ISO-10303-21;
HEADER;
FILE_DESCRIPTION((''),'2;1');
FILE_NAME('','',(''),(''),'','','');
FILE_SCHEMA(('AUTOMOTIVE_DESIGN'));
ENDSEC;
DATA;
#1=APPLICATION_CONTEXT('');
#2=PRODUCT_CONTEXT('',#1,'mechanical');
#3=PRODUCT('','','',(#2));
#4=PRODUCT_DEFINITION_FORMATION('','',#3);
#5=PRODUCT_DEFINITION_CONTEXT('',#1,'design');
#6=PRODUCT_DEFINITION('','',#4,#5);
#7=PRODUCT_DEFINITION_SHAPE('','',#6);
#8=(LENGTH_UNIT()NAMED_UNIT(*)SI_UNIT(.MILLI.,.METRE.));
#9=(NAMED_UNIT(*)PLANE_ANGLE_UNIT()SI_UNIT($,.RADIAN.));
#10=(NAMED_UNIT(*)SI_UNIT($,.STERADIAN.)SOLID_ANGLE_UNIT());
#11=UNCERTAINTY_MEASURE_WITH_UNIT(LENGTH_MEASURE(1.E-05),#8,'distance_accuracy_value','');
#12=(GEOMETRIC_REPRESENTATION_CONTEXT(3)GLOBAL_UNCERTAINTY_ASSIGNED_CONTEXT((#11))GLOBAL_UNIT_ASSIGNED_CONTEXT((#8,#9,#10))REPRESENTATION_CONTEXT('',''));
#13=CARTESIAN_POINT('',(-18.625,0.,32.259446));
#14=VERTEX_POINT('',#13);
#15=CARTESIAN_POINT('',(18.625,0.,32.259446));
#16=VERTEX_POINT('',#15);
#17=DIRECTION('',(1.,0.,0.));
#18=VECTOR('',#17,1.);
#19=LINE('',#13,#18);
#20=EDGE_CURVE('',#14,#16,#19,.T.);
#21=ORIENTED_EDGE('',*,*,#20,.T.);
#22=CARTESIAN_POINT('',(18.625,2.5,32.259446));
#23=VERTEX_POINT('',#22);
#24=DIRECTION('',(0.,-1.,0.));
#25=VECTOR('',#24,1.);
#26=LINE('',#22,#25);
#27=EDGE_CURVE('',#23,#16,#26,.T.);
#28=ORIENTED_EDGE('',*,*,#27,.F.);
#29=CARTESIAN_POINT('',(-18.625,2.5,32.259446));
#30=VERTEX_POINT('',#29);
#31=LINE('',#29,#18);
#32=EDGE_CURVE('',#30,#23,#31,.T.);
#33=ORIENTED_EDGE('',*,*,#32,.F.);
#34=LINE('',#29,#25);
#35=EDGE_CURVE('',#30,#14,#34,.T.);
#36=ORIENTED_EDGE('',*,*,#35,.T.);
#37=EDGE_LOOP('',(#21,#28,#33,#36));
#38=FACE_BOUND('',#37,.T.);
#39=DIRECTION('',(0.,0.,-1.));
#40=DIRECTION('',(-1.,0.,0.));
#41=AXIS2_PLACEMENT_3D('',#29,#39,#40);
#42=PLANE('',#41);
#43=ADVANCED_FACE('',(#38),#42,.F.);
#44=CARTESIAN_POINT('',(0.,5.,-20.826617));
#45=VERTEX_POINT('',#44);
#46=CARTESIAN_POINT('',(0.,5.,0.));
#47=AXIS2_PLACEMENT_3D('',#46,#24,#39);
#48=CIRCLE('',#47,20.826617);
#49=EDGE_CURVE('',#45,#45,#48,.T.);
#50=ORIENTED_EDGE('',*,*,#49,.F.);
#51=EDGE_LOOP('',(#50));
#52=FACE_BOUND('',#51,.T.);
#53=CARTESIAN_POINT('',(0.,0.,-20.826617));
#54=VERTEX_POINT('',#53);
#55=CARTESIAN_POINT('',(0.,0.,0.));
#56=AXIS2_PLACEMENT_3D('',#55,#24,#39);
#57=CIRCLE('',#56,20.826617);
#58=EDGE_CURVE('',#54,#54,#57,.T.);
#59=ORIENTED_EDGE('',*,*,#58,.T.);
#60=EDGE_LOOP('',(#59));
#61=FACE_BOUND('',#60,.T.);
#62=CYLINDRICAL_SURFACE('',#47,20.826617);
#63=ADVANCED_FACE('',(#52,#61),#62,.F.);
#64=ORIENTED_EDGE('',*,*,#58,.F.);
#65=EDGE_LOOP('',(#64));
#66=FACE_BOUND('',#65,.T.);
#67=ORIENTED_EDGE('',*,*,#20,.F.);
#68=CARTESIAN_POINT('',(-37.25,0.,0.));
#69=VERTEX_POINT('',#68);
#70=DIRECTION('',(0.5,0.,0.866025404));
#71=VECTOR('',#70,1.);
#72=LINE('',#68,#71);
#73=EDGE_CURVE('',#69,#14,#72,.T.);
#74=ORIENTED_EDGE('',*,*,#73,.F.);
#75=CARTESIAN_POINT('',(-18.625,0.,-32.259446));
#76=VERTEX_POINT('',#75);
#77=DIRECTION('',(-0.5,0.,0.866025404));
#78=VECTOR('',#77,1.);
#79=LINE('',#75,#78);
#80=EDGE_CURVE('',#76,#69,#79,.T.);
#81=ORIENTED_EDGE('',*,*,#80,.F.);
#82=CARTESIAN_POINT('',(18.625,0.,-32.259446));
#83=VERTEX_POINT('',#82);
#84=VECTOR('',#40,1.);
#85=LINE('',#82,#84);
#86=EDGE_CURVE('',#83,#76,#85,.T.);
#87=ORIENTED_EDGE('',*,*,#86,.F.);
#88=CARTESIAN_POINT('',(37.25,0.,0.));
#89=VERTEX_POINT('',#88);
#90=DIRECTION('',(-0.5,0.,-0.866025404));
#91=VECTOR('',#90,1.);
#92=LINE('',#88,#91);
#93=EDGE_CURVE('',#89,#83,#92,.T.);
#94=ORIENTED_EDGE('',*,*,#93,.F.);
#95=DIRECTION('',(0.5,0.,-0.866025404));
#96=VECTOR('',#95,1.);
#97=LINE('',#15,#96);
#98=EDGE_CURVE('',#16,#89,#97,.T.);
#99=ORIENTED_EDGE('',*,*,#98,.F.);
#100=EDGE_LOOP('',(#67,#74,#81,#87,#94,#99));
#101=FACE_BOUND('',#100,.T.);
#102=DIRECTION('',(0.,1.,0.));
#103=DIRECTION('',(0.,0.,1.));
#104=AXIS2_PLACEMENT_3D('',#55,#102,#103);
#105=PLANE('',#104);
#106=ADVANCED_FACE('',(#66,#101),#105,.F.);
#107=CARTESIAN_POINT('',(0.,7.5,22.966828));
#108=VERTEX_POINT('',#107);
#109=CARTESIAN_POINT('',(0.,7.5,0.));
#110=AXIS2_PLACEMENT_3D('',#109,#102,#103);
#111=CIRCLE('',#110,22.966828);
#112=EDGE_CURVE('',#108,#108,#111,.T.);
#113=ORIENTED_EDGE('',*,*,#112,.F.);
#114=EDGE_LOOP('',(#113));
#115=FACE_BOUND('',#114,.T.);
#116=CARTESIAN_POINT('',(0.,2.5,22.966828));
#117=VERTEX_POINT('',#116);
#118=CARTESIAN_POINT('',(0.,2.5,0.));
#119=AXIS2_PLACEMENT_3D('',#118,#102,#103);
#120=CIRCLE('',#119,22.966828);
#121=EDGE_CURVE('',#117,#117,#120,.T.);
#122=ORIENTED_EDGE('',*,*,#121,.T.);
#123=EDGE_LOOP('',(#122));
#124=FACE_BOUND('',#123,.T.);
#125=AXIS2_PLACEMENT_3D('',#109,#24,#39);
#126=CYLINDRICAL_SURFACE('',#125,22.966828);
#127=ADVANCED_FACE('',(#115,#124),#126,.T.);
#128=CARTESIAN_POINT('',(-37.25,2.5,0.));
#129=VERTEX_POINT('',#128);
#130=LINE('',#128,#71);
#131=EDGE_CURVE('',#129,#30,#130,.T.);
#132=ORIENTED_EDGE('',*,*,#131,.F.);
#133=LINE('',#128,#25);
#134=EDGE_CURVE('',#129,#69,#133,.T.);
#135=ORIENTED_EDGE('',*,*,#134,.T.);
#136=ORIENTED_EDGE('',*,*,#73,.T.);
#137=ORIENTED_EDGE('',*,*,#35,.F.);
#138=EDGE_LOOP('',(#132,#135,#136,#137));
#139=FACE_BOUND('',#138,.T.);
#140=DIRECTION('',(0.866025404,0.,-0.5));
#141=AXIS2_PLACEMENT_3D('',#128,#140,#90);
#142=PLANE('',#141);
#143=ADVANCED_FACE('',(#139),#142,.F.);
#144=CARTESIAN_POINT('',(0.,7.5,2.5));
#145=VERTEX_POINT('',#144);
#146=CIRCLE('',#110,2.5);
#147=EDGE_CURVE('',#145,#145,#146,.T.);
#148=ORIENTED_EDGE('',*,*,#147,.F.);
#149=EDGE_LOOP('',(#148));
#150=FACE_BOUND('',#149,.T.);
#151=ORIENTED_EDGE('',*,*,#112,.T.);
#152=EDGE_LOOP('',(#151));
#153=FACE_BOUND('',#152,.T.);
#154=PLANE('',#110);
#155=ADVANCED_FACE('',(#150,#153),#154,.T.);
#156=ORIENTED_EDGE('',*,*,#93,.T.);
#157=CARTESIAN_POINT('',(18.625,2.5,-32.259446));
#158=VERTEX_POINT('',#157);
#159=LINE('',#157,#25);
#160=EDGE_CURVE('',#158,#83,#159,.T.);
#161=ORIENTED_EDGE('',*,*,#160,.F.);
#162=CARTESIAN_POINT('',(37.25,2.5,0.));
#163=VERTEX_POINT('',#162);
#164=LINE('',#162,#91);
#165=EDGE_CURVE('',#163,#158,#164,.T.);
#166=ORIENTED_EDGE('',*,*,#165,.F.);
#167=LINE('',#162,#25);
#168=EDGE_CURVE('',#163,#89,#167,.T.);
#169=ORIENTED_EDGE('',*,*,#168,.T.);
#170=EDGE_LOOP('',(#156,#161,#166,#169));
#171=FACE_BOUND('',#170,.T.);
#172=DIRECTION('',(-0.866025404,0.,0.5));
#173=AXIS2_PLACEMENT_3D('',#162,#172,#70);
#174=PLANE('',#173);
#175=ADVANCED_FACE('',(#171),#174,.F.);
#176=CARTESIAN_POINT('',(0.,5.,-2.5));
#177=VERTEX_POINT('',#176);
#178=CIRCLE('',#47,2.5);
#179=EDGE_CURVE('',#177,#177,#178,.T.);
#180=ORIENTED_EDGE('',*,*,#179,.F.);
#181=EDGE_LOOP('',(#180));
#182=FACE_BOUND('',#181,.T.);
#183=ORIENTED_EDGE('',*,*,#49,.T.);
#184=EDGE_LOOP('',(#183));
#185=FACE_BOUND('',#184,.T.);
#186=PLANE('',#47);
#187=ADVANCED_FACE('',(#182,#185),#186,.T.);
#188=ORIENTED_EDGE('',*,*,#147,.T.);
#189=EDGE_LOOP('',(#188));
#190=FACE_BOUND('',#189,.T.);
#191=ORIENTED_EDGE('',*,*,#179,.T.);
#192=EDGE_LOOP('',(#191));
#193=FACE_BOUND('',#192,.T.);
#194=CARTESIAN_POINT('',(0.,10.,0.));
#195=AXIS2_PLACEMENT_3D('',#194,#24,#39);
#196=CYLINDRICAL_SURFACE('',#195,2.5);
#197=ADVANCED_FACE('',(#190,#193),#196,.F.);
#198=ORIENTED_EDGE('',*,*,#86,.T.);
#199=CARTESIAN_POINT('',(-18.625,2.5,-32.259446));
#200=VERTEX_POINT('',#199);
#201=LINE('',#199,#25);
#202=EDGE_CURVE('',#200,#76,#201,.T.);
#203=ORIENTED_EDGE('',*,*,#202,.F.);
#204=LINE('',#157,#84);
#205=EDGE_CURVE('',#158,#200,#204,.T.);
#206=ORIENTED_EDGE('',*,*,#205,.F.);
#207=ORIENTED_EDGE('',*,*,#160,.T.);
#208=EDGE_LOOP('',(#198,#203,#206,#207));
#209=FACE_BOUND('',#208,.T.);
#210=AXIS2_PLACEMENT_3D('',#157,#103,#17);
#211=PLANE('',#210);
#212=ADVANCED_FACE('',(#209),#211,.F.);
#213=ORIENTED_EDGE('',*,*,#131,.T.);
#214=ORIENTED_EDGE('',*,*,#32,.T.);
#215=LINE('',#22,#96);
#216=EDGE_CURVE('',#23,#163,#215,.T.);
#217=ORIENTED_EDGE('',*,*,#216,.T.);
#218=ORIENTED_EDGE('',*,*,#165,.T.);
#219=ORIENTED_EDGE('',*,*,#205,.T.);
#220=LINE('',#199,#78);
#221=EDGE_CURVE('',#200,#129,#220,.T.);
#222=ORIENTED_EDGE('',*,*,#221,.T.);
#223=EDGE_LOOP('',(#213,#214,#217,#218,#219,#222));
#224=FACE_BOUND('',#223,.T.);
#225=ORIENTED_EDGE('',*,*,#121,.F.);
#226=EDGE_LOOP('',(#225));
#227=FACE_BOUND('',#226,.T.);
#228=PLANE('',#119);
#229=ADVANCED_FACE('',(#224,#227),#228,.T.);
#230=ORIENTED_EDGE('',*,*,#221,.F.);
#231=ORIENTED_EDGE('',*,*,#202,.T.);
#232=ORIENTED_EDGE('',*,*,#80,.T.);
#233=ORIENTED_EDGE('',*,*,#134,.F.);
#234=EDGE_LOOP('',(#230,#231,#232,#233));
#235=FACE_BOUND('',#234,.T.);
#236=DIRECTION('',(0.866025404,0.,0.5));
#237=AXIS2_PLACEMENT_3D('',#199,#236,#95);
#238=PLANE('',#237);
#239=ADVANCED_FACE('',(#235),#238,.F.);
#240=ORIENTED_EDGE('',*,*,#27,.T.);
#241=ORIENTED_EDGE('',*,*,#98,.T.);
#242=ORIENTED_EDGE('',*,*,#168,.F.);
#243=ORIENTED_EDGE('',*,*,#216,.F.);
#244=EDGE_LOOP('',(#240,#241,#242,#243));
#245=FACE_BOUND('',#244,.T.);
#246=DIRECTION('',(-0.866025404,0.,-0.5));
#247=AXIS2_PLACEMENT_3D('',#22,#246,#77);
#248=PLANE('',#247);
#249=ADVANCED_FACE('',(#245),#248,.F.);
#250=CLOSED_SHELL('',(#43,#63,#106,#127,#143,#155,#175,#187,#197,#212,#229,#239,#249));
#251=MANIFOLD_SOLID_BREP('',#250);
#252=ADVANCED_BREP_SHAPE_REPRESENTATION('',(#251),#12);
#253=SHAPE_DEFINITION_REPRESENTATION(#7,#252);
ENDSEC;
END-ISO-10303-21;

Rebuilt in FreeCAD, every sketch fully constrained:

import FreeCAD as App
import Part
import Sketcher
Q = App.Units.Quantity

doc = App.newDocument("Part")
body = doc.addObject("PartDesign::Body", "Body")

# Sketch on XZ plane
sketch1 = body.newObject("Sketcher::SketchObject", "Sketch")
sketch1.AttachmentSupport = (doc.getObject("XZ_Plane"), [""])
sketch1.MapMode = "FlatFace"
sketch1.addGeometry(Part.LineSegment(App.Vector(37.25, 0, 0), App.Vector(18.625, -32.259446, 0)), False)
sketch1.addGeometry(Part.LineSegment(App.Vector(18.625, -32.259446, 0), App.Vector(-18.625, -32.259446, 0)), False)
sketch1.addGeometry(Part.LineSegment(App.Vector(-18.625, -32.259446, 0), App.Vector(-37.25, 0, 0)), False)
sketch1.addGeometry(Part.LineSegment(App.Vector(-37.25, 0, 0), App.Vector(-18.625, 32.259446, 0)), False)
sketch1.addGeometry(Part.LineSegment(App.Vector(-18.625, 32.259446, 0), App.Vector(18.625, 32.259446, 0)), False)
sketch1.addGeometry(Part.LineSegment(App.Vector(18.625, 32.259446, 0), App.Vector(37.25, 0, 0)), False)
sketch1.addConstraint(Sketcher.Constraint("Coincident", 0, 2, 1, 1))
sketch1.addConstraint(Sketcher.Constraint("Coincident", 1, 2, 2, 1))
sketch1.addConstraint(Sketcher.Constraint("Coincident", 2, 2, 3, 1))
sketch1.addConstraint(Sketcher.Constraint("Coincident", 3, 2, 4, 1))
sketch1.addConstraint(Sketcher.Constraint("Coincident", 4, 2, 5, 1))
sketch1.addConstraint(Sketcher.Constraint("Coincident", 5, 2, 0, 1))
sketch1.addConstraint(Sketcher.Constraint("Horizontal", 1))
sketch1.addConstraint(Sketcher.Constraint("Horizontal", 4))
sketch1.addConstraint(Sketcher.Constraint("Symmetric", 0, 2, 3, 2, -1, 1))
sketch1.addConstraint(Sketcher.Constraint("Symmetric", 2, 2, 5, 2, -1, 1))
sketch1.addConstraint(Sketcher.Constraint("PointOnObject", 2, 2, -1))
sketch1.addConstraint(Sketcher.Constraint("Parallel", 2, 5))
sketch1.addConstraint(Sketcher.Constraint("Vertical", 1, 2, 3, 2))
sketch1.addConstraint(Sketcher.Constraint("Angle", 0, Q("-120 deg")))
sketch1.addConstraint(Sketcher.Constraint("DistanceX", 1, 2, 1, 1, Q("37.25 mm")))
sketch1.addConstraint(Sketcher.Constraint("DistanceX", 2, 2, 5, 2, Q("74.5 mm")))
pad1 = body.newObject("PartDesign::Pad", "Pad")
pad1.Profile = sketch1
pad1.Length = 2.5
pad1.Reversed = True

# Sketch on XZ plane
sketch2 = body.newObject("Sketcher::SketchObject", "Sketch001")
sketch2.AttachmentSupport = (doc.getObject("XZ_Plane"), [""])
sketch2.MapMode = "FlatFace"
sketch2.addGeometry(Part.Circle(App.Vector(0, 0, 0), App.Vector(0, 0, 1), 2.5), False)
sketch2.addConstraint(Sketcher.Constraint("Coincident", 0, 3, -1, 1))
sketch2.addConstraint(Sketcher.Constraint("Diameter", 0, Q("5 mm")))
pocket1 = body.newObject("PartDesign::Pocket", "Pocket")
pocket1.Profile = sketch2
pocket1.Length = 2.5

# Sketch on XZ plane
sketch3 = body.newObject("Sketcher::SketchObject", "Sketch002")
sketch3.AttachmentSupport = (doc.getObject("XZ_Plane"), [""])
sketch3.MapMode = "FlatFace"
sketch3.AttachmentOffset = App.Placement(App.Vector(0, 0, -2.5), App.Rotation())
sketch3.addGeometry(Part.Circle(App.Vector(0, 0, 0), App.Vector(0, 0, 1), 22.966828), False)
sketch3.addConstraint(Sketcher.Constraint("Coincident", 0, 3, -1, 1))
sketch3.addConstraint(Sketcher.Constraint("Diameter", 0, Q("45.933657 mm")))
pad2 = body.newObject("PartDesign::Pad", "Pad001")
pad2.Profile = sketch3
pad2.Length = 5
pad2.Reversed = True

# Sketch on XZ plane
sketch4 = body.newObject("Sketcher::SketchObject", "Sketch003")
sketch4.AttachmentSupport = (doc.getObject("XZ_Plane"), [""])
sketch4.MapMode = "FlatFace"
sketch4.addGeometry(Part.Circle(App.Vector(0, 0, 0), App.Vector(0, 0, 1), 20.826617), False)
sketch4.addConstraint(Sketcher.Constraint("Coincident", 0, 3, -1, 1))
sketch4.addConstraint(Sketcher.Constraint("Diameter", 0, Q("41.653233 mm")))
pocket2 = body.newObject("PartDesign::Pocket", "Pocket001")
pocket2.Profile = sketch4
pocket2.Length = 5

# Sketch on XZ plane
sketch5 = body.newObject("Sketcher::SketchObject", "Sketch004")
sketch5.AttachmentSupport = (doc.getObject("XZ_Plane"), [""])
sketch5.MapMode = "FlatFace"
sketch5.AttachmentOffset = App.Placement(App.Vector(0, 0, -5), App.Rotation())
sketch5.addGeometry(Part.Circle(App.Vector(0, 0, 0), App.Vector(0, 0, 1), 2.5), False)
sketch5.addConstraint(Sketcher.Constraint("Coincident", 0, 3, -1, 1))
sketch5.addConstraint(Sketcher.Constraint("Diameter", 0, Q("5 mm")))
pocket3 = body.newObject("PartDesign::Pocket", "Pocket002")
pocket3.Profile = sketch5
pocket3.Length = 5

doc.recompute()
